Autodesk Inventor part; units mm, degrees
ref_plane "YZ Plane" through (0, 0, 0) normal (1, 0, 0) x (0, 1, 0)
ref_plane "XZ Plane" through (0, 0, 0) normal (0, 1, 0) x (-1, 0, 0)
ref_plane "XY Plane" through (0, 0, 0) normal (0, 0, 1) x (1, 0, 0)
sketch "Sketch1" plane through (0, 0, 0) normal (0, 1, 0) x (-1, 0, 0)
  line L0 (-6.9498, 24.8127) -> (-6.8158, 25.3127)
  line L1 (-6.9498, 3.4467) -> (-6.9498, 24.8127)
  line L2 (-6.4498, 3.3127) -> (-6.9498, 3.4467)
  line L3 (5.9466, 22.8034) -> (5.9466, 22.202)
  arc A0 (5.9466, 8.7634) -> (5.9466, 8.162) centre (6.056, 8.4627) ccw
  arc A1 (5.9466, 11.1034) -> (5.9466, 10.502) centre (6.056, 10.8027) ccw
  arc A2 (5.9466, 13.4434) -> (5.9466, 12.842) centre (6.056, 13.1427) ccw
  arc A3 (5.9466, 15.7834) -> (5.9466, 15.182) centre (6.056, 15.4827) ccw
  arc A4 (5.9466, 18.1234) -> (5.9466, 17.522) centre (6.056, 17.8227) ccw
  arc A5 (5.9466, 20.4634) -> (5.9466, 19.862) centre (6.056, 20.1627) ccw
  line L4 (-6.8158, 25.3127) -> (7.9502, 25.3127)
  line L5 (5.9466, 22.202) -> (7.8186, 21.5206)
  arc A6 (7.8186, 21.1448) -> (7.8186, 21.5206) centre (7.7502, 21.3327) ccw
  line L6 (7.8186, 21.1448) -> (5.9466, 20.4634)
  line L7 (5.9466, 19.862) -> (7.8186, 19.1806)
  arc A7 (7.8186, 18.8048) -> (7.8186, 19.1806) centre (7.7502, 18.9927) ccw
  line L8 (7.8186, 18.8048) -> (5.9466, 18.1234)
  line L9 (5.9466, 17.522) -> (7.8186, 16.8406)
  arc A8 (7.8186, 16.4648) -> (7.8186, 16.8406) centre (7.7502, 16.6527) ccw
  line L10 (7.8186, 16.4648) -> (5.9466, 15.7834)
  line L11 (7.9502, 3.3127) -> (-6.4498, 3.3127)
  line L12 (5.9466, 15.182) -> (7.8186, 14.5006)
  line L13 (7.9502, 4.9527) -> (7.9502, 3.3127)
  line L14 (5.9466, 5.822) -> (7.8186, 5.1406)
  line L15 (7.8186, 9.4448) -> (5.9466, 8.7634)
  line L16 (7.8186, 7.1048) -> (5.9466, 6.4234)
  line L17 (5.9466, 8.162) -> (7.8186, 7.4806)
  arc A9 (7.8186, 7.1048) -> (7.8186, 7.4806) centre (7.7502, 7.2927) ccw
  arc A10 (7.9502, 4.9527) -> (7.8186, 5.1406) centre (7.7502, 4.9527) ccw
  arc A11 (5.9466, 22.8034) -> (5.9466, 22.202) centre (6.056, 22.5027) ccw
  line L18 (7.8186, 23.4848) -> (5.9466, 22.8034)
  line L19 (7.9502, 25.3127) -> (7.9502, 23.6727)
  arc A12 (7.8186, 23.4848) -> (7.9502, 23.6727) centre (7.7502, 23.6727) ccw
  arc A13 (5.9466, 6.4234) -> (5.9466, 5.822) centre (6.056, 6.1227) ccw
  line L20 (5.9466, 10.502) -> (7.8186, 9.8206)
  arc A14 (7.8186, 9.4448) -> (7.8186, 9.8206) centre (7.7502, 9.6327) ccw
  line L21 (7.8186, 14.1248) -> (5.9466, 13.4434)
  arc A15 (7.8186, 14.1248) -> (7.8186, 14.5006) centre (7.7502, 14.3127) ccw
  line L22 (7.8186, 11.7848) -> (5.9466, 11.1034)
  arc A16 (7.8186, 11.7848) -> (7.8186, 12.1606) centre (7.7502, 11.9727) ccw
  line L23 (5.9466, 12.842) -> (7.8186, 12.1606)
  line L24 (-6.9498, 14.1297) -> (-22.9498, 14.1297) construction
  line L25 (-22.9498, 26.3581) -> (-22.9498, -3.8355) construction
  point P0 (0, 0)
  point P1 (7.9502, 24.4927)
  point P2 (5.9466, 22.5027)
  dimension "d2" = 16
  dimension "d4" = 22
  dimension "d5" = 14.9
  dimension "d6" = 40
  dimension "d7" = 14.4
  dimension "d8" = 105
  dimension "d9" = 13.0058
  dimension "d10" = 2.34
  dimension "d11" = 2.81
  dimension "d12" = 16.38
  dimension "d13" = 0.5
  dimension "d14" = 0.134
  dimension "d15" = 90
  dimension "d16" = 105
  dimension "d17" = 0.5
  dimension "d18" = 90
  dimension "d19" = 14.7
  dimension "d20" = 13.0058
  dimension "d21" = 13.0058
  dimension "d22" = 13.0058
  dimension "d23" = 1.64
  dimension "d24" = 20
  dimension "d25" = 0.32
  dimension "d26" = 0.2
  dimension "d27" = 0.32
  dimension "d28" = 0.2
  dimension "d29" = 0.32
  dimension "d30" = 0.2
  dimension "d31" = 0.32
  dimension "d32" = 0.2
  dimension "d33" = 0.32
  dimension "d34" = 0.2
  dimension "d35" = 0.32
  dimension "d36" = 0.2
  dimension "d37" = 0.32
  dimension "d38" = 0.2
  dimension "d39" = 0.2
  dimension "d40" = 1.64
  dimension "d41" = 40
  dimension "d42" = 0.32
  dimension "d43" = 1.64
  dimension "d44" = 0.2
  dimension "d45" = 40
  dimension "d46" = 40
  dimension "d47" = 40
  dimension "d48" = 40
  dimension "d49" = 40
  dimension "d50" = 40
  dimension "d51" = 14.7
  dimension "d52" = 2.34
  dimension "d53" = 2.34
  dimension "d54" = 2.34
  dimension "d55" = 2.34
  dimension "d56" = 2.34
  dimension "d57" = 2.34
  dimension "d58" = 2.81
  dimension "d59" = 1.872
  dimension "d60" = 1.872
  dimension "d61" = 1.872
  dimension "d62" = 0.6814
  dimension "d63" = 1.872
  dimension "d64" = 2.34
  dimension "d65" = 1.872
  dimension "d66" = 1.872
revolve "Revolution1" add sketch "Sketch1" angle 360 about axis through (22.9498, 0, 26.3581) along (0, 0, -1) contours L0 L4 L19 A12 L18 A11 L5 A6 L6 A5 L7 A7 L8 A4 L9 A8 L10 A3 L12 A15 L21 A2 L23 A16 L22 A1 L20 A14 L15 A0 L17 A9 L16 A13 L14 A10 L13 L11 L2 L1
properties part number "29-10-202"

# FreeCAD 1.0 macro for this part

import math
import FreeCAD as App
import Part
import Sketcher

V = App.Vector

doc = App.newDocument("Part")
body = doc.addObject("PartDesign::Body", "Body")

# Sketch on XZ plane
sketch1 = body.newObject("Sketcher::SketchObject", "Sketch")
sketch1.AttachmentSupport = (doc.getObject("XZ_Plane"), [""])
sketch1.MapMode = "FlatFace"
sketch1.addGeometry([
    Part.LineSegment(V(6.8158, 25.3127, 0), V(6.9498, 24.8127, 0)),  # 0
    Part.LineSegment(V(6.9498, 24.8127, 0), V(6.9498, 3.4467, 0)),  # 1
    Part.LineSegment(V(6.9498, 3.4467, 0), V(6.4498, 3.3127, 0)),  # 2
    Part.LineSegment(V(6.4498, 3.3127, 0), V(-7.9502, 3.3127, 0)),  # 3
    Part.LineSegment(V(-7.9502, 3.3127, 0), V(-7.9502, 4.9527, 0)),  # 4
    Part.ArcOfCircle(Part.Circle(V(-7.7502, 4.9527, 0), V(0, 0, 1), 0.2), math.radians(110.002691), math.radians(180)),  # 5
    Part.LineSegment(V(-7.8186, 5.1406, 0), V(-5.9466, 5.822, 0)),  # 6
    Part.ArcOfCircle(Part.Circle(V(-6.056, 6.1227, 0), V(0, 0, 1), 0.319983), math.radians(-70.007715), math.radians(70.007715)),  # 7
    Part.LineSegment(V(-5.9466, 6.4234, 0), V(-7.8186, 7.1048, 0)),  # 8
    Part.ArcOfCircle(Part.Circle(V(-7.7502, 7.2927, 0), V(0, 0, 1), 0.199962), math.radians(110.002691), math.radians(249.997309)),  # 9
    Part.LineSegment(V(-7.8186, 7.4806, 0), V(-5.9466, 8.162, 0)),  # 10
    Part.ArcOfCircle(Part.Circle(V(-6.056, 8.4627, 0), V(0, 0, 1), 0.319983), math.radians(-70.007715), math.radians(70.007715)),  # 11
    Part.LineSegment(V(-5.9466, 8.7634, 0), V(-7.8186, 9.4448, 0)),  # 12
    Part.ArcOfCircle(Part.Circle(V(-7.7502, 9.6327, 0), V(0, 0, 1), 0.199962), math.radians(110.002691), math.radians(249.997309)),  # 13
    Part.LineSegment(V(-7.8186, 9.8206, 0), V(-5.9466, 10.502, 0)),  # 14
    Part.ArcOfCircle(Part.Circle(V(-6.056, 10.8027, 0), V(0, 0, 1), 0.319983), math.radians(-70.007715), math.radians(70.007715)),  # 15
    Part.LineSegment(V(-5.9466, 11.1034, 0), V(-7.8186, 11.7848, 0)),  # 16
    Part.ArcOfCircle(Part.Circle(V(-7.7502, 11.9727, 0), V(0, 0, 1), 0.199962), math.radians(110.002691), math.radians(249.997309)),  # 17
    Part.LineSegment(V(-7.8186, 12.1606, 0), V(-5.9466, 12.842, 0)),  # 18
    Part.ArcOfCircle(Part.Circle(V(-6.056, 13.1427, 0), V(0, 0, 1), 0.319983), math.radians(-70.007715), math.radians(70.007715)),  # 19
    Part.LineSegment(V(-5.9466, 13.4434, 0), V(-7.8186, 14.1248, 0)),  # 20
    Part.ArcOfCircle(Part.Circle(V(-7.7502, 14.3127, 0), V(0, 0, 1), 0.199962), math.radians(110.002691), math.radians(249.997309)),  # 21
    Part.LineSegment(V(-7.8186, 14.5006, 0), V(-5.9466, 15.182, 0)),  # 22
    Part.ArcOfCircle(Part.Circle(V(-6.056, 15.4827, 0), V(0, 0, 1), 0.319983), math.radians(-70.007715), math.radians(70.007715)),  # 23
    Part.LineSegment(V(-5.9466, 15.7834, 0), V(-7.8186, 16.4648, 0)),  # 24
    Part.ArcOfCircle(Part.Circle(V(-7.7502, 16.6527, 0), V(0, 0, 1), 0.199962), math.radians(110.002691), math.radians(249.997309)),  # 25
    Part.LineSegment(V(-7.8186, 16.8406, 0), V(-5.9466, 17.522, 0)),  # 26
    Part.ArcOfCircle(Part.Circle(V(-6.056, 17.8227, 0), V(0, 0, 1), 0.319983), math.radians(-70.007715), math.radians(70.007715)),  # 27
    Part.LineSegment(V(-5.9466, 18.1234, 0), V(-7.8186, 18.8048, 0)),  # 28
    Part.ArcOfCircle(Part.Circle(V(-7.7502, 18.9927, 0), V(0, 0, 1), 0.199962), math.radians(110.002691), math.radians(249.997309)),  # 29
    Part.LineSegment(V(-7.8186, 19.1806, 0), V(-5.9466, 19.862, 0)),  # 30
    Part.ArcOfCircle(Part.Circle(V(-6.056, 20.1627, 0), V(0, 0, 1), 0.319983), math.radians(-70.007715), math.radians(70.007715)),  # 31
    Part.LineSegment(V(-5.9466, 20.4634, 0), V(-7.8186, 21.1448, 0)),  # 32
    Part.ArcOfCircle(Part.Circle(V(-7.7502, 21.3327, 0), V(0, 0, 1), 0.199962), math.radians(110.002691), math.radians(249.997309)),  # 33
    Part.LineSegment(V(-7.8186, 21.5206, 0), V(-5.9466, 22.202, 0)),  # 34
    Part.ArcOfCircle(Part.Circle(V(-6.056, 22.5027, 0), V(0, 0, 1), 0.319983), math.radians(-70.007715), math.radians(70.007715)),  # 35
    Part.LineSegment(V(-5.9466, 22.8034, 0), V(-7.8186, 23.4848, 0)),  # 36
    Part.ArcOfCircle(Part.Circle(V(-7.7502, 23.6727, 0), V(0, 0, 1), 0.199962), math.radians(180), math.radians(249.997309)),  # 37
    Part.LineSegment(V(-7.9502, 23.6727, 0), V(-7.9502, 25.3127, 0)),  # 38
    Part.LineSegment(V(-7.9502, 25.3127, 0), V(6.8158, 25.3127, 0)),  # 39
], False)
sketch1.addGeometry(Part.LineSegment(V(22.9498, 25.3127, 0), V(22.9498, 3.3127, 0)), True)  # axis
sketch1.addConstraint([
    Sketcher.Constraint("Coincident", 0, 2, 1, 1),
    Sketcher.Constraint("Coincident", 1, 2, 2, 1),
    Sketcher.Constraint("Coincident", 2, 2, 3, 1),
    Sketcher.Constraint("Coincident", 3, 2, 4, 1),
    Sketcher.Constraint("Tangent", 4, 2, 5, 2),
    Sketcher.Constraint("Tangent", 5, 1, 6, 1),
    Sketcher.Constraint("Tangent", 6, 2, 7, 1),
    Sketcher.Constraint("Tangent", 7, 2, 8, 1),
    Sketcher.Constraint("Tangent", 8, 2, 9, 2),
    Sketcher.Constraint("Tangent", 9, 1, 10, 1),
    Sketcher.Constraint("Tangent", 10, 2, 11, 1),
    Sketcher.Constraint("Tangent", 11, 2, 12, 1),
    Sketcher.Constraint("Tangent", 12, 2, 13, 2),
    Sketcher.Constraint("Tangent", 13, 1, 14, 1),
    Sketcher.Constraint("Tangent", 14, 2, 15, 1),
    Sketcher.Constraint("Tangent", 15, 2, 16, 1),
    Sketcher.Constraint("Tangent", 16, 2, 17, 2),
    Sketcher.Constraint("Tangent", 17, 1, 18, 1),
    Sketcher.Constraint("Tangent", 18, 2, 19, 1),
    Sketcher.Constraint("Tangent", 19, 2, 20, 1),
    Sketcher.Constraint("Tangent", 20, 2, 21, 2),
    Sketcher.Constraint("Tangent", 21, 1, 22, 1),
    Sketcher.Constraint("Tangent", 22, 2, 23, 1),
    Sketcher.Constraint("Tangent", 23, 2, 24, 1),
    Sketcher.Constraint("Tangent", 24, 2, 25, 2),
    Sketcher.Constraint("Tangent", 25, 1, 26, 1),
    Sketcher.Constraint("Tangent", 26, 2, 27, 1),
    Sketcher.Constraint("Tangent", 27, 2, 28, 1),
    Sketcher.Constraint("Tangent", 28, 2, 29, 2),
    Sketcher.Constraint("Tangent", 29, 1, 30, 1),
    Sketcher.Constraint("Tangent", 30, 2, 31, 1),
    Sketcher.Constraint("Tangent", 31, 2, 32, 1),
    Sketcher.Constraint("Tangent", 32, 2, 33, 2),
    Sketcher.Constraint("Tangent", 33, 1, 34, 1),
    Sketcher.Constraint("Tangent", 34, 2, 35, 1),
    Sketcher.Constraint("Tangent", 35, 2, 36, 1),
    Sketcher.Constraint("Tangent", 36, 2, 37, 2),
    Sketcher.Constraint("Tangent", 37, 1, 38, 1),
    Sketcher.Constraint("Coincident", 38, 2, 39, 1),
    Sketcher.Constraint("Coincident", 39, 2, 0, 1),
    Sketcher.Constraint("Vertical", 1),
    Sketcher.Constraint("Horizontal", 3),
    Sketcher.Constraint("Vertical", 4),
    Sketcher.Constraint("Vertical", 38),
    Sketcher.Constraint("Horizontal", 39),
    Sketcher.Constraint("Vertical", 40),
    Sketcher.Constraint("Equal", 5, 9),
    Sketcher.Constraint("Equal", 7, 11),
    Sketcher.Constraint("Equal", 9, 13),
    Sketcher.Constraint("Equal", 11, 15),
    Sketcher.Constraint("Equal", 13, 17),
    Sketcher.Constraint("Equal", 15, 19),
    Sketcher.Constraint("Equal", 17, 21),
    Sketcher.Constraint("Equal", 19, 23),
    Sketcher.Constraint("Equal", 21, 25),
    Sketcher.Constraint("Equal", 23, 27),
    Sketcher.Constraint("Equal", 25, 29),
    Sketcher.Constraint("Equal", 27, 31),
    Sketcher.Constraint("Equal", 29, 33),
    Sketcher.Constraint("Equal", 31, 35),
    Sketcher.Constraint("Equal", 33, 37),
    Sketcher.Constraint("Perpendicular", 0, 2),
    Sketcher.Constraint("Parallel", 6, 10),
    Sketcher.Constraint("Parallel", 8, 12),
    Sketcher.Constraint("Parallel", 10, 14),
    Sketcher.Constraint("Parallel", 12, 16),
    Sketcher.Constraint("Parallel", 14, 18),
    Sketcher.Constraint("Parallel", 16, 20),
    Sketcher.Constraint("Parallel", 18, 22),
    Sketcher.Constraint("Parallel", 20, 24),
    Sketcher.Constraint("Parallel", 22, 26),
    Sketcher.Constraint("Parallel", 24, 28),
    Sketcher.Constraint("Parallel", 26, 30),
    Sketcher.Constraint("Parallel", 28, 32),
    Sketcher.Constraint("Parallel", 30, 34),
    Sketcher.Constraint("Parallel", 32, 36),
    Sketcher.Constraint("Horizontal", 39, 2, 40, 1),
    Sketcher.Constraint("Horizontal", 3, 2, 40, 2),
    Sketcher.Constraint("Vertical", 5, 3, 9, 3),
    Sketcher.Constraint("Vertical", 7, 3, 11, 3),
    Sketcher.Constraint("Vertical", 9, 3, 13, 3),
    Sketcher.Constraint("Vertical", 11, 3, 15, 3),
    Sketcher.Constraint("Vertical", 13, 3, 17, 3),
    Sketcher.Constraint("Vertical", 15, 3, 19, 3),
    Sketcher.Constraint("Vertical", 17, 3, 21, 3),
    Sketcher.Constraint("Vertical", 19, 3, 23, 3),
    Sketcher.Constraint("Vertical", 21, 3, 25, 3),
    Sketcher.Constraint("Vertical", 23, 3, 27, 3),
    Sketcher.Constraint("Vertical", 25, 3, 29, 3),
    Sketcher.Constraint("Vertical", 27, 3, 31, 3),
    Sketcher.Constraint("Vertical", 29, 3, 33, 3),
    Sketcher.Constraint("Vertical", 31, 3, 35, 3),
    Sketcher.Constraint("Vertical", 33, 3, 37, 3),
    Sketcher.Constraint("Vertical", 6, 2, 7, 2),
    Sketcher.Constraint("Equal", 4, 38),
    Sketcher.Constraint("Equal", 0, 2),
    Sketcher.Constraint("Radius", 5, 0.2),
    Sketcher.Constraint("DistanceY", 40, 2, 40, 1, 22.0),
    Sketcher.Constraint("Radius", 7, 0.32),
    Sketcher.Constraint("DistanceX", 3, 2, 3, 1, 14.4),
    Sketcher.Constraint("DistanceX", 0, 2, 40, 1, 16.0),
    Sketcher.Constraint("DistanceY", 4, 1, 4, 2, 1.64),
    Sketcher.Constraint("DistanceX", 37, 3, 0, 2, 14.7),
    Sketcher.Constraint("DistanceY", 2, 2, 1, 2, 0.134),
    Sketcher.Constraint("DistanceX", 5, 1, 6, 2, 1.872),
    Sketcher.Constraint("DistanceX", 7, 3, -1, 1, 6.056),
    Sketcher.Constraint("DistanceY", -1, 1, 6, 2, 5.822),
])
revolution = body.newObject("PartDesign::Revolution", "Revolution")
revolution.Profile = sketch1
revolution.ReferenceAxis = (sketch1, ["Axis0"])
revolution.Angle = 360

doc.recompute()
